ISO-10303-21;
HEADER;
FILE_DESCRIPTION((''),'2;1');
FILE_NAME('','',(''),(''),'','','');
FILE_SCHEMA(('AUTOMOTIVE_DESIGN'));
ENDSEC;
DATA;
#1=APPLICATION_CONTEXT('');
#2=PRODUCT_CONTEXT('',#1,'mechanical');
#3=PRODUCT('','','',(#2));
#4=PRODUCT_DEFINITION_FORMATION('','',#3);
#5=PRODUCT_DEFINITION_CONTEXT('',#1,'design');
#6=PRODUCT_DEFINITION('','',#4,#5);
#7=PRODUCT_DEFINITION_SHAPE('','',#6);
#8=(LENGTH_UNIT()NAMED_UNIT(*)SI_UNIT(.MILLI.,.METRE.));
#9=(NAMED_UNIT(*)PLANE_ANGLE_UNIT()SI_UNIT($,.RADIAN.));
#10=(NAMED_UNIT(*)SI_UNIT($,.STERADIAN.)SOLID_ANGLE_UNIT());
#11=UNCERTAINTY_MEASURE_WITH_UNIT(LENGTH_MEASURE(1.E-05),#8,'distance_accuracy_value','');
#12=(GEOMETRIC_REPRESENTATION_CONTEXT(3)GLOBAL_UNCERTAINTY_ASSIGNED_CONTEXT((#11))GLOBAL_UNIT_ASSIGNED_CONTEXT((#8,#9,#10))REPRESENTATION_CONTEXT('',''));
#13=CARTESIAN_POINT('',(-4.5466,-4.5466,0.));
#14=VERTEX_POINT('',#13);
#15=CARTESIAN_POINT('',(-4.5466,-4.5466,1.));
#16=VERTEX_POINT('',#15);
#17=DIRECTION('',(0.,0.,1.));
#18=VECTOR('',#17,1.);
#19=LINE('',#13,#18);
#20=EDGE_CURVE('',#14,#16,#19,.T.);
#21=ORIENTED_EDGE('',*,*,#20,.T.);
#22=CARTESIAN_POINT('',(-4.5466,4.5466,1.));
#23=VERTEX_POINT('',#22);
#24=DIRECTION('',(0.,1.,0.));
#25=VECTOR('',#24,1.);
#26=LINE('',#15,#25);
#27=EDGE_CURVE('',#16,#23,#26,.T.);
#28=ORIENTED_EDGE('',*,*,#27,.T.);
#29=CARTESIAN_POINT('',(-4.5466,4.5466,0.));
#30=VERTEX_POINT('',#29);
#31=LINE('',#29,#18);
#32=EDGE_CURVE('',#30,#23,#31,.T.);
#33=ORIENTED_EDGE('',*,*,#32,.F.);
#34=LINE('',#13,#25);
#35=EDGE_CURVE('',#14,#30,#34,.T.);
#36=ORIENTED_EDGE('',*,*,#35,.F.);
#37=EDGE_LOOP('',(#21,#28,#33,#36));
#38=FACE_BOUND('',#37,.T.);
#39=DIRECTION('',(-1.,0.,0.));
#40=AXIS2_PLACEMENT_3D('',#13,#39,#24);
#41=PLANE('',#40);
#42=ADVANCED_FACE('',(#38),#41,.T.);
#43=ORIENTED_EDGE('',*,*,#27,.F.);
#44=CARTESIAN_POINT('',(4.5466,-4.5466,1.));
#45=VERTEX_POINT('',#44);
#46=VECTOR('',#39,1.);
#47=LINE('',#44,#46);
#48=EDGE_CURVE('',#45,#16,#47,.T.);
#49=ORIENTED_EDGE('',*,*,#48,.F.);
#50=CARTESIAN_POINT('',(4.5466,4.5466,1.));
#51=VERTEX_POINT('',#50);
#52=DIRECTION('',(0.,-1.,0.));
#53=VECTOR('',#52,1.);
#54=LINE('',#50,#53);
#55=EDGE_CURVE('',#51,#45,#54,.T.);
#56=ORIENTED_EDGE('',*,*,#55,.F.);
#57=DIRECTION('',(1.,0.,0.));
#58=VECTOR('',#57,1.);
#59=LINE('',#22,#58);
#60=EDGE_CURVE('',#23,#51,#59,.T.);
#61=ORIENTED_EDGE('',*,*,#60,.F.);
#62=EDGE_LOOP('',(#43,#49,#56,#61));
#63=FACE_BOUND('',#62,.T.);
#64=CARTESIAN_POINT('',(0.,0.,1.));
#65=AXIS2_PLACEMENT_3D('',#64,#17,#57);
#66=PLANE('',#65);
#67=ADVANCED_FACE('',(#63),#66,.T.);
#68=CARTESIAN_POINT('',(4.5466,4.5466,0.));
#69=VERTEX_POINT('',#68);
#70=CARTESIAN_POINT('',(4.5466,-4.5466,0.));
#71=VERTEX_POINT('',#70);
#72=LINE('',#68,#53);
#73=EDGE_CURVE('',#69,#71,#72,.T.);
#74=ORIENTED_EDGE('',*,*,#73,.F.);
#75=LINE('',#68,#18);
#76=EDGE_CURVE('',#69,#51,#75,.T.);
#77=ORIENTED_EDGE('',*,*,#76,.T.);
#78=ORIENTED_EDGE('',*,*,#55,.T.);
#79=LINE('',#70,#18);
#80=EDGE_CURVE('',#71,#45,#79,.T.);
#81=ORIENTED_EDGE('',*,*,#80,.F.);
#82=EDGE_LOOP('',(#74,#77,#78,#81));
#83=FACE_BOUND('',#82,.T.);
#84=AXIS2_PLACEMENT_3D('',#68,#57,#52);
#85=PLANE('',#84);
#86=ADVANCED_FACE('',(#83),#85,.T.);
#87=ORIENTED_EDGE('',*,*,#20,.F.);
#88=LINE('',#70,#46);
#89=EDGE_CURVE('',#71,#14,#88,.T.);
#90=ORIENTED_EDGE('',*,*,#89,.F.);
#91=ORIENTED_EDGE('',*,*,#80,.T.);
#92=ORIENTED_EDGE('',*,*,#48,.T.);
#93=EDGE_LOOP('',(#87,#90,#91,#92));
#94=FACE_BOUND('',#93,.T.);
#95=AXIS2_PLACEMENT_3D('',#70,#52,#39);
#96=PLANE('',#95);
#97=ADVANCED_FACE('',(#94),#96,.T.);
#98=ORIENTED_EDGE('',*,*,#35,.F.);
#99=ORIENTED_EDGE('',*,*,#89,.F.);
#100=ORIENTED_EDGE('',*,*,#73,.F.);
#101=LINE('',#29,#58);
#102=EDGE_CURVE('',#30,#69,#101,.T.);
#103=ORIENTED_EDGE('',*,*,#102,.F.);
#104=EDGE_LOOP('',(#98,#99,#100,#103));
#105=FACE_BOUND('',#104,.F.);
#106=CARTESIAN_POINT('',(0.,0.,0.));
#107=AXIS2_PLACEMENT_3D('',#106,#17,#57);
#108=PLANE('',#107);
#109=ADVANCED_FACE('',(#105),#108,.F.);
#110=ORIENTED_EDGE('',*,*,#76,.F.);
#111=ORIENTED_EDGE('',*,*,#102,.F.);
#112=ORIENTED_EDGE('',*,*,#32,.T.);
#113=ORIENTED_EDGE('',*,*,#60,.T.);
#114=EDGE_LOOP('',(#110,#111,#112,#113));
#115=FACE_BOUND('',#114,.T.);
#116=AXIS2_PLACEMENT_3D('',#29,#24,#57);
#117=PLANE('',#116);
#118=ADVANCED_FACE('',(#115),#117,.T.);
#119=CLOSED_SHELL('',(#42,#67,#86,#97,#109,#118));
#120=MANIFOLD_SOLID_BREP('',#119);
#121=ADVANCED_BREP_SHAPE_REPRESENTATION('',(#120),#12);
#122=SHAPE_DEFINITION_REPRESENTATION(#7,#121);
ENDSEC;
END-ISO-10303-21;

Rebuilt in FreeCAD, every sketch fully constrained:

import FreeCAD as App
import Part
import Sketcher

V = App.Vector
Q = App.Units.Quantity

doc = App.newDocument("Part")
body = doc.addObject("PartDesign::Body", "Body")

# Sketch on XY plane
sketch1 = body.newObject("Sketcher::SketchObject", "Sketch")
sketch1.AttachmentSupport = (doc.getObject("XY_Plane"), [""])
sketch1.MapMode = "FlatFace"
sketch1.addGeometry([
    Part.LineSegment(V(5, 5, 0), V(-5, 5, 0)),
    Part.LineSegment(V(-5, 5, 0), V(-5, -5, 0)),
    Part.LineSegment(V(-5, -5, 0), V(5, -5, 0)),
    Part.LineSegment(V(5, -5, 0), V(5, 5, 0)),
], False)
sketch1.addConstraint([
    Sketcher.Constraint("Coincident", 0, 2, 1, 1),
    Sketcher.Constraint("Coincident", 1, 2, 2, 1),
    Sketcher.Constraint("Coincident", 2, 2, 3, 1),
    Sketcher.Constraint("Coincident", 3, 2, 0, 1),
    Sketcher.Constraint("Horizontal", 0),
    Sketcher.Constraint("Vertical", 1),
    Sketcher.Constraint("Horizontal", 2),
    Sketcher.Constraint("Vertical", 3),
    Sketcher.Constraint("Symmetric", 0, 2, 2, 2, -1, 1),
    Sketcher.Constraint("Equal", 2, 1),
    Sketcher.Constraint("DistanceX", 0, 2, 0, 1, Q("9.0932 mm")),
])
pad1 = body.newObject("PartDesign::Pad", "Pad")
pad1.Profile = sketch1
pad1.Length = 1

doc.recompute()
